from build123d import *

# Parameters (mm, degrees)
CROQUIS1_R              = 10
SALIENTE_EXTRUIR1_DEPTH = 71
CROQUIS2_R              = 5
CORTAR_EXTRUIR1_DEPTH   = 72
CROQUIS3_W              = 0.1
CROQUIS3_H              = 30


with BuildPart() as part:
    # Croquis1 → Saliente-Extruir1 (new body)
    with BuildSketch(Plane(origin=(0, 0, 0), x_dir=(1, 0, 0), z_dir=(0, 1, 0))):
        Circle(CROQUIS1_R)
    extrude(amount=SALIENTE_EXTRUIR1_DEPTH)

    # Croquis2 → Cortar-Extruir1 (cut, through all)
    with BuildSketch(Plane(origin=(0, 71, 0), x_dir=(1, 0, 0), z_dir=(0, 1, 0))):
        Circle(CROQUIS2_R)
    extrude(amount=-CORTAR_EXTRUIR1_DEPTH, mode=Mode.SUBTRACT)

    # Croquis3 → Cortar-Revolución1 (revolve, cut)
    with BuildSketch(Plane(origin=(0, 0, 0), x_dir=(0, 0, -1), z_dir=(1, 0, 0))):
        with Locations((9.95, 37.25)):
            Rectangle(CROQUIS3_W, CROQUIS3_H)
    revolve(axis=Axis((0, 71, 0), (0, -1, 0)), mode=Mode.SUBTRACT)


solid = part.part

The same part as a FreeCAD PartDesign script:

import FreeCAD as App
import Part
import Sketcher
Q = App.Units.Quantity

doc = App.newDocument("Part")
body = doc.addObject("PartDesign::Body", "Body")

# Sketch on XZ plane
sketch1 = body.newObject("Sketcher::SketchObject", "Sketch")
sketch1.AttachmentSupport = (doc.getObject("XZ_Plane"), [""])
sketch1.MapMode = "FlatFace"
sketch1.addGeometry(Part.Circle(App.Vector(0, 0, 0), App.Vector(0, 0, 1), 10), False)
sketch1.addConstraint(Sketcher.Constraint("Coincident", 0, 3, -1, 1))
sketch1.addConstraint(Sketcher.Constraint("Diameter", 0, Q("20 mm")))
pad1 = body.newObject("PartDesign::Pad", "Pad")
pad1.Profile = sketch1
pad1.Length = 71
pad1.Reversed = True

# Sketch on XZ plane
sketch2 = body.newObject("Sketcher::SketchObject", "Sketch001")
sketch2.AttachmentSupport = (doc.getObject("XZ_Plane"), [""])
sketch2.MapMode = "FlatFace"
sketch2.AttachmentOffset = App.Placement(App.Vector(0, 0, -71), App.Rotation())
sketch2.addGeometry(Part.Circle(App.Vector(0, 0, 0), App.Vector(0, 0, 1), 5), False)
sketch2.addConstraint(Sketcher.Constraint("Coincident", 0, 3, -1, 1))
sketch2.addConstraint(Sketcher.Constraint("Diameter", 0, Q("10 mm")))
pocket1 = body.newObject("PartDesign::Pocket", "Pocket")
pocket1.Profile = sketch2
pocket1.Type = "ThroughAll"
pocket1.Reversed = True

# Sketch on YZ plane
sketch3 = body.newObject("Sketcher::SketchObject", "Sketch002")
sketch3.AttachmentSupport = (doc.getObject("YZ_Plane"), [""])
sketch3.MapMode = "FlatFace"
sketch3.addGeometry(Part.LineSegment(App.Vector(52.25, -9.9, 0), App.Vector(22.25, -9.9, 0)), False)
sketch3.addGeometry(Part.LineSegment(App.Vector(22.25, -9.9, 0), App.Vector(22.25, -10, 0)), False)
sketch3.addGeometry(Part.LineSegment(App.Vector(22.25, -10, 0), App.Vector(52.25, -10, 0)), False)
sketch3.addGeometry(Part.LineSegment(App.Vector(52.25, -10, 0), App.Vector(52.25, -9.9, 0)), False)
sketch3.addConstraint(Sketcher.Constraint("Coincident", 0, 2, 1, 1))
sketch3.addConstraint(Sketcher.Constraint("Coincident", 1, 2, 2, 1))
sketch3.addConstraint(Sketcher.Constraint("Coincident", 2, 2, 3, 1))
sketch3.addConstraint(Sketcher.Constraint("Coincident", 3, 2, 0, 1))
sketch3.addConstraint(Sketcher.Constraint("Horizontal", 0))
sketch3.addConstraint(Sketcher.Constraint("Vertical", 1))
sketch3.addConstraint(Sketcher.Constraint("Horizontal", 2))
sketch3.addConstraint(Sketcher.Constraint("Vertical", 3))
sketch3.addConstraint(Sketcher.Constraint("DistanceX", 0, 2, 0, 1, Q("30 mm")))
sketch3.addConstraint(Sketcher.Constraint("DistanceY", 1, 2, 1, 1, Q("0.1 mm")))
sketch3.addConstraint(Sketcher.Constraint("DistanceY", 1, 2, -1, 1, Q("10 mm")))
sketch3.addConstraint(Sketcher.Constraint("DistanceX", -1, 1, 0, 2, Q("22.25 mm")))
groove = body.newObject("PartDesign::Groove", "Groove")
groove.Profile = sketch3
groove.ReferenceAxis = (sketch3, ["H_Axis"])
groove.Angle = 360

doc.recompute()
